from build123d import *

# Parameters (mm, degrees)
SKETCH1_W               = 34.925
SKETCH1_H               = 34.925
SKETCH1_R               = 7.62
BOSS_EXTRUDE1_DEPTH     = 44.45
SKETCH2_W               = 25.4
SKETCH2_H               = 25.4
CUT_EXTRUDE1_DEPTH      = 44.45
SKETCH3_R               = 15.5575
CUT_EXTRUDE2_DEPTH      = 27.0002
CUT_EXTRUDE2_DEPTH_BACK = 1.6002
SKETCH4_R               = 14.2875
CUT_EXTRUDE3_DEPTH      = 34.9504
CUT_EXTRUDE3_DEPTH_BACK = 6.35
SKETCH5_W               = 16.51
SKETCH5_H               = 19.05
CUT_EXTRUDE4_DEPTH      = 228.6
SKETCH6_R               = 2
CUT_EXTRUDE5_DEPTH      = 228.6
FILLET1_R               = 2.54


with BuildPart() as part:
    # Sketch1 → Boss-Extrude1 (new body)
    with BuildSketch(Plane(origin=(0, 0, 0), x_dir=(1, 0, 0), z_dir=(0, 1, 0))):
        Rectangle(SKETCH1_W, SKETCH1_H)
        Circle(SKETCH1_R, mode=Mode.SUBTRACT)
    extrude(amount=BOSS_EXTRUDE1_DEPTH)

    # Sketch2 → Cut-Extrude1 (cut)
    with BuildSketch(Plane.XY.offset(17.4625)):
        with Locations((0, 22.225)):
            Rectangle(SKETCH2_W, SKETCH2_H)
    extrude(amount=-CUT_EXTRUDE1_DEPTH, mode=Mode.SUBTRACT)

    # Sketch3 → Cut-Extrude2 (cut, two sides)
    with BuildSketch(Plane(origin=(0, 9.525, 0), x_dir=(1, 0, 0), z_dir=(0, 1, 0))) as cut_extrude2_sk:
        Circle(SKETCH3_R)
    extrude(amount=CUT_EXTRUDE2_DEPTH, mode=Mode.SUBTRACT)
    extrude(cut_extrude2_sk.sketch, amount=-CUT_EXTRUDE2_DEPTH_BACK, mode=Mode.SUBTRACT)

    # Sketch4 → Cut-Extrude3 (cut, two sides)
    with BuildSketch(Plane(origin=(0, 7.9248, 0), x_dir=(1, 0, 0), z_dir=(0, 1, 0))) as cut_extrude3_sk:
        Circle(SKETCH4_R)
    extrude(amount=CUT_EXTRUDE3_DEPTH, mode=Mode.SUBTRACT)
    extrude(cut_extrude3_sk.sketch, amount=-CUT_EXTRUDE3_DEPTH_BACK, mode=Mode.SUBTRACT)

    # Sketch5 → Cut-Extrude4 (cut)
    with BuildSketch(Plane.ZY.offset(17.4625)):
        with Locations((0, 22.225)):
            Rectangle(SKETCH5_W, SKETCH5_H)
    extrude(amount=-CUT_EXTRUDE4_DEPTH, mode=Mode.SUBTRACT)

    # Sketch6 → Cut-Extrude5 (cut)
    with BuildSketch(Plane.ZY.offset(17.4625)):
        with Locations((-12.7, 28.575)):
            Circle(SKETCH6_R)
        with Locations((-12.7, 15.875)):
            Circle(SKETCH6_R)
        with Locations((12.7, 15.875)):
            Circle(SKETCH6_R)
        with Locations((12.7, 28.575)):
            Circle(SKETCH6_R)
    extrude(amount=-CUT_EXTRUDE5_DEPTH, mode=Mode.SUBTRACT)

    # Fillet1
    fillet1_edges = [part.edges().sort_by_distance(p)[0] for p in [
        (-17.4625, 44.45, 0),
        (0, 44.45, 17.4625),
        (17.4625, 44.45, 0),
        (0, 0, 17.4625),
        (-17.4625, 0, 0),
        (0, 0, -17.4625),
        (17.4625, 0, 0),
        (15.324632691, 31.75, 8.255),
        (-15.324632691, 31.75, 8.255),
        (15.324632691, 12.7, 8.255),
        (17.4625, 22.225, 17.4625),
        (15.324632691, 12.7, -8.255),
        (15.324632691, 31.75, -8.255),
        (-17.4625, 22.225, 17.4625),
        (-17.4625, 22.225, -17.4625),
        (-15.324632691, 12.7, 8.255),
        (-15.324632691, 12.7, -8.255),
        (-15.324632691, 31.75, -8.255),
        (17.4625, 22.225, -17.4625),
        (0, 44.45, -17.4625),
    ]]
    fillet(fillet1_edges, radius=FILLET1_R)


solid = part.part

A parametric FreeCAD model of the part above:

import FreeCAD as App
import Part
import Sketcher

V = App.Vector
Q = App.Units.Quantity


def edges_at(feature, points):
    """Names of the edges that pass closest to the given points."""
    edges = feature.Shape.Edges
    near = lambda p: min(range(len(edges)), key=lambda i: edges[i].distToShape(Part.Vertex(*p))[0])
    return sorted({f"Edge{near(p) + 1}" for p in points})

doc = App.newDocument("Part")
body = doc.addObject("PartDesign::Body", "Body")

sketch1 = doc.addObject("Sketcher::SketchObject", "Sketch")
body.addObject(sketch1)
sketch1.AttachmentSupport = (doc.XZ_Plane, [""])
sketch1.MapMode = "FlatFace"
sketch1.addGeometry([
    Part.LineSegment(V(-17, -17, 0), V(-17, 17, 0)),
    Part.LineSegment(V(-17, 17, 0), V(17, 17, 0)),
    Part.LineSegment(V(17, 17, 0), V(17, -17, 0)),
    Part.LineSegment(V(17, -17, 0), V(-17, -17, 0)),
    Part.Circle(V(0, 0, 0), V(0, 0, 1), 8),
], False)
sketch1.addConstraint([
    Sketcher.Constraint("Coincident", 0, 2, 1, 1),
    Sketcher.Constraint("Coincident", 1, 2, 2, 1),
    Sketcher.Constraint("Coincident", 2, 2, 3, 1),
    Sketcher.Constraint("Coincident", 3, 2, 0, 1),
    Sketcher.Constraint("Vertical", 0),
    Sketcher.Constraint("Horizontal", 1),
    Sketcher.Constraint("Vertical", 2),
    Sketcher.Constraint("Horizontal", 3),
    Sketcher.Constraint("Coincident", 4, 3, -1, 1),
    Sketcher.Constraint("Symmetric", 0, 2, 2, 2, -1, 1),
    Sketcher.Constraint("Equal", 3, 0),
    Sketcher.Constraint("Diameter", 4, Q("0.6 in")),
    Sketcher.Constraint("DistanceX", 1, 1, 1, 2, Q("1.375 in")),
])
pad1 = doc.addObject("PartDesign::Pad", "Pad")
body.addObject(pad1)
pad1.Profile = sketch1
pad1.Length = Q("1.75 in")
pad1.Reversed = True

sketch2 = doc.addObject("Sketcher::SketchObject", "Sketch001")
body.addObject(sketch2)
sketch2.AttachmentSupport = (doc.XY_Plane, [""])
sketch2.MapMode = "FlatFace"
sketch2.AttachmentOffset = App.Placement(V(0, 0, 0.6875 * 25.4), App.Rotation())
sketch2.addGeometry([
    Part.LineSegment(V(-13, 35, 0), V(-13, 10, 0)),
    Part.LineSegment(V(-13, 10, 0), V(13, 10, 0)),
    Part.LineSegment(V(13, 10, 0), V(13, 35, 0)),
    Part.LineSegment(V(13, 35, 0), V(-13, 35, 0)),
], False)
sketch2.addConstraint([
    Sketcher.Constraint("Coincident", 0, 2, 1, 1),
    Sketcher.Constraint("Coincident", 1, 2, 2, 1),
    Sketcher.Constraint("Coincident", 2, 2, 3, 1),
    Sketcher.Constraint("Coincident", 3, 2, 0, 1),
    Sketcher.Constraint("Vertical", 0),
    Sketcher.Constraint("Horizontal", 1),
    Sketcher.Constraint("Vertical", 2),
    Sketcher.Constraint("Horizontal", 3),
    Sketcher.Constraint("Equal", 3, 0),
    Sketcher.Constraint("DistanceX", 1, 1, 1, 2, Q("1 in")),
    Sketcher.Constraint("DistanceX", 0, 2, -1, 1, Q("0.5 in")),
    Sketcher.Constraint("DistanceY", -1, 1, 0, 2, Q("0.375 in")),
])
pocket1 = doc.addObject("PartDesign::Pocket", "Pocket")
body.addObject(pocket1)
pocket1.Profile = sketch2
pocket1.Length = Q("1.75 in")

sketch3 = doc.addObject("Sketcher::SketchObject", "Sketch002")
body.addObject(sketch3)
sketch3.AttachmentSupport = (doc.XZ_Plane, [""])
sketch3.MapMode = "FlatFace"
sketch3.AttachmentOffset = App.Placement(V(0, 0, -0.375 * 25.4), App.Rotation())
sketch3.addGeometry(Part.Circle(V(0, 0, 0), V(0, 0, 1), 16), False)
sketch3.addConstraint([
    Sketcher.Constraint("Coincident", 0, 3, -1, 1),
    Sketcher.Constraint("Diameter", 0, Q("1.225 in")),
])
pocket2 = doc.addObject("PartDesign::Pocket", "Pocket001")
body.addObject(pocket2)
pocket2.Profile = sketch3
pocket2.Type = "TwoLengths"
pocket2.Length = Q("1.063 in")
pocket2.Length2 = Q("0.063 in")

sketch4 = doc.addObject("Sketcher::SketchObject", "Sketch003")
body.addObject(sketch4)
sketch4.AttachmentSupport = (doc.XZ_Plane, [""])
sketch4.MapMode = "FlatFace"
sketch4.AttachmentOffset = App.Placement(V(0, 0, -0.312 * 25.4), App.Rotation())
sketch4.addGeometry(Part.Circle(V(0, 0, 0), V(0, 0, 1), 14), False)
sketch4.addConstraint([
    Sketcher.Constraint("Coincident", 0, 3, -1, 1),
    Sketcher.Constraint("Diameter", 0, Q("1.125 in")),
])
pocket3 = doc.addObject("PartDesign::Pocket", "Pocket002")
body.addObject(pocket3)
pocket3.Profile = sketch4
pocket3.Type = "TwoLengths"
pocket3.Length = Q("1.376 in")
pocket3.Length2 = Q("0.25 in")

sketch5 = doc.addObject("Sketcher::SketchObject", "Sketch004")
body.addObject(sketch5)
sketch5.AttachmentSupport = (doc.YZ_Plane, [""])
sketch5.MapMode = "FlatFace"
sketch5.AttachmentOffset = App.Placement(V(0, 0, -0.6875 * 25.4), App.Rotation())
sketch5.addGeometry([
    Part.LineSegment(V(32, -8, 0), V(13, -8, 0)),
    Part.LineSegment(V(13, -8, 0), V(13, 8, 0)),
    Part.LineSegment(V(13, 8, 0), V(32, 8, 0)),
    Part.LineSegment(V(32, 8, 0), V(32, -8, 0)),
], False)
sketch5.addConstraint([
    Sketcher.Constraint("Coincident", 0, 2, 1, 1),
    Sketcher.Constraint("Coincident", 1, 2, 2, 1),
    Sketcher.Constraint("Coincident", 2, 2, 3, 1),
    Sketcher.Constraint("Coincident", 3, 2, 0, 1),
    Sketcher.Constraint("Horizontal", 0),
    Sketcher.Constraint("Vertical", 1),
    Sketcher.Constraint("Horizontal", 2),
    Sketcher.Constraint("Vertical", 3),
    Sketcher.Constraint("DistanceX", 0, 2, 0, 1, Q("0.75 in")),
    Sketcher.Constraint("DistanceY", 1, 1, 1, 2, Q("0.65 in")),
    Sketcher.Constraint("DistanceX", -1, 1, 0, 2, Q("0.5 in")),
    Sketcher.Constraint("DistanceY", 0, 2, -1, 1, Q("0.325 in")),
])
pocket4 = doc.addObject("PartDesign::Pocket", "Pocket003")
body.addObject(pocket4)
pocket4.Profile = sketch5
pocket4.Length = Q("9 in")
pocket4.Reversed = True

sketch6 = doc.addObject("Sketcher::SketchObject", "Sketch005")
body.addObject(sketch6)
sketch6.AttachmentSupport = (doc.YZ_Plane, [""])
sketch6.MapMode = "FlatFace"
sketch6.AttachmentOffset = App.Placement(V(0, 0, -0.6875 * 25.4), App.Rotation())
sketch6.addGeometry([
    Part.Circle(V(28.6, -12.7, 0), V(0, 0, 1), 2),
    Part.Circle(V(15.9, -12.7, 0), V(0, 0, 1), 2),
    Part.Circle(V(15.9, 12.7, 0), V(0, 0, 1), 2),
    Part.Circle(V(28.6, 12.7, 0), V(0, 0, 1), 2),
], False)
sketch6.addConstraint([
    Sketcher.Constraint("Equal", 0, 1),
    Sketcher.Constraint("Equal", 1, 2),
    Sketcher.Constraint("Equal", 2, 3),
    Sketcher.Constraint("Symmetric", 1, 3, 2, 3, -1),
    Sketcher.Constraint("Symmetric", 0, 3, 3, 3, -1),
    Sketcher.Constraint("Horizontal", 0, 3, 1, 3),
    Sketcher.Constraint("DistanceY", 1, 3, 2, 3, Q("1 in")),
    Sketcher.Constraint("DistanceX", 1, 3, 0, 3, Q("0.5 in")),
    Sketcher.Constraint("Diameter", 0, 4.0),
    Sketcher.Constraint("DistanceX", -1, 1, 0, 3, Q("1.125 in")),
])
pocket5 = doc.addObject("PartDesign::Pocket", "Pocket004")
body.addObject(pocket5)
pocket5.Profile = sketch6
pocket5.Length = Q("9 in")
pocket5.Reversed = True
doc.recompute()

fillet = doc.addObject("PartDesign::Fillet", "Fillet")
body.addObject(fillet)
fillet.Base = (pocket5, edges_at(pocket5, [
    (-17.462, 44.45, 0),
    (0, 44.45, 17.462),
    (17.462, 44.45, 0),
    (0, 0, 17.462),
    (-17.462, 0, 0),
    (0, 0, -17.462),
    (17.462, 0, 0),
    (15.325, 31.75, 8.255),
    (-15.325, 31.75, 8.255),
    (15.325, 12.7, 8.255),
    (17.462, 22.225, 17.462),
    (15.325, 12.7, -8.255),
    (15.325, 31.75, -8.255),
    (-17.462, 22.225, 17.462),
    (-17.462, 22.225, -17.462),
    (-15.325, 12.7, 8.255),
    (-15.325, 12.7, -8.255),
    (-15.325, 31.75, -8.255),
    (17.462, 22.225, -17.462),
    (0, 44.45, -17.462),
]))
fillet.Radius = Q("0.1 in")

doc.recompute()
